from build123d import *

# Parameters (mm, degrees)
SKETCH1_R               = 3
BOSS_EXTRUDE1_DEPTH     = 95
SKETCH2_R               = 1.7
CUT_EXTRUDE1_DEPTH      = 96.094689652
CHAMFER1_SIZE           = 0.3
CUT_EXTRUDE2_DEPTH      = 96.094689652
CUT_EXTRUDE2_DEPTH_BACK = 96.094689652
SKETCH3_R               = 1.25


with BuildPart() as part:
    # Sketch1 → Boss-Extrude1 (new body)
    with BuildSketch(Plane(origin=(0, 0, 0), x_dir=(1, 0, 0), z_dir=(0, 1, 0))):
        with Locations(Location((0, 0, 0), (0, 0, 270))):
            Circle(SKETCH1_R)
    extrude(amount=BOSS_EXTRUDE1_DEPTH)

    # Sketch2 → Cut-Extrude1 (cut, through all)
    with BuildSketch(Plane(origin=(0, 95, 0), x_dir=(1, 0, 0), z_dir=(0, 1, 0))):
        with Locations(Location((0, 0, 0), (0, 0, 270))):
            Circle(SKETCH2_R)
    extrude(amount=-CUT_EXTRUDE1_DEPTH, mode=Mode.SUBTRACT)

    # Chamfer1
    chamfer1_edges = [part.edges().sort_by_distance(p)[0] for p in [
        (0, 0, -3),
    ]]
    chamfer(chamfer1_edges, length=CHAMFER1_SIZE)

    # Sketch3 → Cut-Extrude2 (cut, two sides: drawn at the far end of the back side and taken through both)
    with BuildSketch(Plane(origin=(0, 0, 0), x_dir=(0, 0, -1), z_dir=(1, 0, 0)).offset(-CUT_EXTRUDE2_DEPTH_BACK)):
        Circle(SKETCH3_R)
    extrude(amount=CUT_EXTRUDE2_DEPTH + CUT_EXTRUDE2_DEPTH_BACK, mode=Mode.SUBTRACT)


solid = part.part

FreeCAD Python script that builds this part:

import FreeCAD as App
import Part
import Sketcher

V = App.Vector


def edges_at(feature, points):
    """Names of the edges that pass closest to the given points."""
    edges = feature.Shape.Edges
    near = lambda p: min(range(len(edges)), key=lambda i: edges[i].distToShape(Part.Vertex(*p))[0])
    return sorted({f"Edge{near(p) + 1}" for p in points})

doc = App.newDocument("Part")
body = doc.addObject("PartDesign::Body", "Body")

# Sketch on XZ plane
sketch1 = doc.addObject("Sketcher::SketchObject", "Sketch")
body.addObject(sketch1)
sketch1.AttachmentSupport = (doc.XZ_Plane, [""])
sketch1.MapMode = "FlatFace"
sketch1.addGeometry(Part.Circle(V(0, 0, 0), V(0, 0, 1), 3), False)
sketch1.addConstraint(Sketcher.Constraint("Coincident", 0, 3, -1, 1))
sketch1.addConstraint(Sketcher.Constraint("Diameter", 0, 6.0))
pad1 = doc.addObject("PartDesign::Pad", "Pad")
body.addObject(pad1)
pad1.Profile = sketch1
pad1.Length = 95
pad1.Reversed = True

# Sketch on XZ plane
sketch2 = doc.addObject("Sketcher::SketchObject", "Sketch001")
body.addObject(sketch2)
sketch2.AttachmentSupport = (doc.XZ_Plane, [""])
sketch2.MapMode = "FlatFace"
sketch2.AttachmentOffset = App.Placement(V(0, 0, -95), App.Rotation())
sketch2.addGeometry(Part.Circle(V(0, 0, 0), V(0, 0, 1), 1.7), False)
sketch2.addConstraint(Sketcher.Constraint("Coincident", 0, 3, -1, 1))
sketch2.addConstraint(Sketcher.Constraint("Diameter", 0, 3.4))
pocket1 = doc.addObject("PartDesign::Pocket", "Pocket")
body.addObject(pocket1)
pocket1.Profile = sketch2
pocket1.Type = "ThroughAll"
pocket1.Reversed = True
doc.recompute()

chamfer = doc.addObject("PartDesign::Chamfer", "Chamfer")
body.addObject(chamfer)
chamfer.Base = (pocket1, edges_at(pocket1, [(0, 0, -3)]))
chamfer.Size = 0.3

# Sketch on YZ plane
sketch3 = doc.addObject("Sketcher::SketchObject", "Sketch002")
body.addObject(sketch3)
sketch3.AttachmentSupport = (doc.YZ_Plane, [""])
sketch3.MapMode = "FlatFace"
sketch3.addGeometry(Part.Circle(V(0, 0, 0), V(0, 0, 1), 1.2), False)
sketch3.addConstraint(Sketcher.Constraint("Coincident", 0, 3, -1, 1))
sketch3.addConstraint(Sketcher.Constraint("Diameter", 0, 2.5))
pocket2 = doc.addObject("PartDesign::Pocket", "Pocket001")
body.addObject(pocket2)
pocket2.Profile = sketch3
pocket2.Type = "ThroughAll"
pocket2.Midplane = True

doc.recompute()
